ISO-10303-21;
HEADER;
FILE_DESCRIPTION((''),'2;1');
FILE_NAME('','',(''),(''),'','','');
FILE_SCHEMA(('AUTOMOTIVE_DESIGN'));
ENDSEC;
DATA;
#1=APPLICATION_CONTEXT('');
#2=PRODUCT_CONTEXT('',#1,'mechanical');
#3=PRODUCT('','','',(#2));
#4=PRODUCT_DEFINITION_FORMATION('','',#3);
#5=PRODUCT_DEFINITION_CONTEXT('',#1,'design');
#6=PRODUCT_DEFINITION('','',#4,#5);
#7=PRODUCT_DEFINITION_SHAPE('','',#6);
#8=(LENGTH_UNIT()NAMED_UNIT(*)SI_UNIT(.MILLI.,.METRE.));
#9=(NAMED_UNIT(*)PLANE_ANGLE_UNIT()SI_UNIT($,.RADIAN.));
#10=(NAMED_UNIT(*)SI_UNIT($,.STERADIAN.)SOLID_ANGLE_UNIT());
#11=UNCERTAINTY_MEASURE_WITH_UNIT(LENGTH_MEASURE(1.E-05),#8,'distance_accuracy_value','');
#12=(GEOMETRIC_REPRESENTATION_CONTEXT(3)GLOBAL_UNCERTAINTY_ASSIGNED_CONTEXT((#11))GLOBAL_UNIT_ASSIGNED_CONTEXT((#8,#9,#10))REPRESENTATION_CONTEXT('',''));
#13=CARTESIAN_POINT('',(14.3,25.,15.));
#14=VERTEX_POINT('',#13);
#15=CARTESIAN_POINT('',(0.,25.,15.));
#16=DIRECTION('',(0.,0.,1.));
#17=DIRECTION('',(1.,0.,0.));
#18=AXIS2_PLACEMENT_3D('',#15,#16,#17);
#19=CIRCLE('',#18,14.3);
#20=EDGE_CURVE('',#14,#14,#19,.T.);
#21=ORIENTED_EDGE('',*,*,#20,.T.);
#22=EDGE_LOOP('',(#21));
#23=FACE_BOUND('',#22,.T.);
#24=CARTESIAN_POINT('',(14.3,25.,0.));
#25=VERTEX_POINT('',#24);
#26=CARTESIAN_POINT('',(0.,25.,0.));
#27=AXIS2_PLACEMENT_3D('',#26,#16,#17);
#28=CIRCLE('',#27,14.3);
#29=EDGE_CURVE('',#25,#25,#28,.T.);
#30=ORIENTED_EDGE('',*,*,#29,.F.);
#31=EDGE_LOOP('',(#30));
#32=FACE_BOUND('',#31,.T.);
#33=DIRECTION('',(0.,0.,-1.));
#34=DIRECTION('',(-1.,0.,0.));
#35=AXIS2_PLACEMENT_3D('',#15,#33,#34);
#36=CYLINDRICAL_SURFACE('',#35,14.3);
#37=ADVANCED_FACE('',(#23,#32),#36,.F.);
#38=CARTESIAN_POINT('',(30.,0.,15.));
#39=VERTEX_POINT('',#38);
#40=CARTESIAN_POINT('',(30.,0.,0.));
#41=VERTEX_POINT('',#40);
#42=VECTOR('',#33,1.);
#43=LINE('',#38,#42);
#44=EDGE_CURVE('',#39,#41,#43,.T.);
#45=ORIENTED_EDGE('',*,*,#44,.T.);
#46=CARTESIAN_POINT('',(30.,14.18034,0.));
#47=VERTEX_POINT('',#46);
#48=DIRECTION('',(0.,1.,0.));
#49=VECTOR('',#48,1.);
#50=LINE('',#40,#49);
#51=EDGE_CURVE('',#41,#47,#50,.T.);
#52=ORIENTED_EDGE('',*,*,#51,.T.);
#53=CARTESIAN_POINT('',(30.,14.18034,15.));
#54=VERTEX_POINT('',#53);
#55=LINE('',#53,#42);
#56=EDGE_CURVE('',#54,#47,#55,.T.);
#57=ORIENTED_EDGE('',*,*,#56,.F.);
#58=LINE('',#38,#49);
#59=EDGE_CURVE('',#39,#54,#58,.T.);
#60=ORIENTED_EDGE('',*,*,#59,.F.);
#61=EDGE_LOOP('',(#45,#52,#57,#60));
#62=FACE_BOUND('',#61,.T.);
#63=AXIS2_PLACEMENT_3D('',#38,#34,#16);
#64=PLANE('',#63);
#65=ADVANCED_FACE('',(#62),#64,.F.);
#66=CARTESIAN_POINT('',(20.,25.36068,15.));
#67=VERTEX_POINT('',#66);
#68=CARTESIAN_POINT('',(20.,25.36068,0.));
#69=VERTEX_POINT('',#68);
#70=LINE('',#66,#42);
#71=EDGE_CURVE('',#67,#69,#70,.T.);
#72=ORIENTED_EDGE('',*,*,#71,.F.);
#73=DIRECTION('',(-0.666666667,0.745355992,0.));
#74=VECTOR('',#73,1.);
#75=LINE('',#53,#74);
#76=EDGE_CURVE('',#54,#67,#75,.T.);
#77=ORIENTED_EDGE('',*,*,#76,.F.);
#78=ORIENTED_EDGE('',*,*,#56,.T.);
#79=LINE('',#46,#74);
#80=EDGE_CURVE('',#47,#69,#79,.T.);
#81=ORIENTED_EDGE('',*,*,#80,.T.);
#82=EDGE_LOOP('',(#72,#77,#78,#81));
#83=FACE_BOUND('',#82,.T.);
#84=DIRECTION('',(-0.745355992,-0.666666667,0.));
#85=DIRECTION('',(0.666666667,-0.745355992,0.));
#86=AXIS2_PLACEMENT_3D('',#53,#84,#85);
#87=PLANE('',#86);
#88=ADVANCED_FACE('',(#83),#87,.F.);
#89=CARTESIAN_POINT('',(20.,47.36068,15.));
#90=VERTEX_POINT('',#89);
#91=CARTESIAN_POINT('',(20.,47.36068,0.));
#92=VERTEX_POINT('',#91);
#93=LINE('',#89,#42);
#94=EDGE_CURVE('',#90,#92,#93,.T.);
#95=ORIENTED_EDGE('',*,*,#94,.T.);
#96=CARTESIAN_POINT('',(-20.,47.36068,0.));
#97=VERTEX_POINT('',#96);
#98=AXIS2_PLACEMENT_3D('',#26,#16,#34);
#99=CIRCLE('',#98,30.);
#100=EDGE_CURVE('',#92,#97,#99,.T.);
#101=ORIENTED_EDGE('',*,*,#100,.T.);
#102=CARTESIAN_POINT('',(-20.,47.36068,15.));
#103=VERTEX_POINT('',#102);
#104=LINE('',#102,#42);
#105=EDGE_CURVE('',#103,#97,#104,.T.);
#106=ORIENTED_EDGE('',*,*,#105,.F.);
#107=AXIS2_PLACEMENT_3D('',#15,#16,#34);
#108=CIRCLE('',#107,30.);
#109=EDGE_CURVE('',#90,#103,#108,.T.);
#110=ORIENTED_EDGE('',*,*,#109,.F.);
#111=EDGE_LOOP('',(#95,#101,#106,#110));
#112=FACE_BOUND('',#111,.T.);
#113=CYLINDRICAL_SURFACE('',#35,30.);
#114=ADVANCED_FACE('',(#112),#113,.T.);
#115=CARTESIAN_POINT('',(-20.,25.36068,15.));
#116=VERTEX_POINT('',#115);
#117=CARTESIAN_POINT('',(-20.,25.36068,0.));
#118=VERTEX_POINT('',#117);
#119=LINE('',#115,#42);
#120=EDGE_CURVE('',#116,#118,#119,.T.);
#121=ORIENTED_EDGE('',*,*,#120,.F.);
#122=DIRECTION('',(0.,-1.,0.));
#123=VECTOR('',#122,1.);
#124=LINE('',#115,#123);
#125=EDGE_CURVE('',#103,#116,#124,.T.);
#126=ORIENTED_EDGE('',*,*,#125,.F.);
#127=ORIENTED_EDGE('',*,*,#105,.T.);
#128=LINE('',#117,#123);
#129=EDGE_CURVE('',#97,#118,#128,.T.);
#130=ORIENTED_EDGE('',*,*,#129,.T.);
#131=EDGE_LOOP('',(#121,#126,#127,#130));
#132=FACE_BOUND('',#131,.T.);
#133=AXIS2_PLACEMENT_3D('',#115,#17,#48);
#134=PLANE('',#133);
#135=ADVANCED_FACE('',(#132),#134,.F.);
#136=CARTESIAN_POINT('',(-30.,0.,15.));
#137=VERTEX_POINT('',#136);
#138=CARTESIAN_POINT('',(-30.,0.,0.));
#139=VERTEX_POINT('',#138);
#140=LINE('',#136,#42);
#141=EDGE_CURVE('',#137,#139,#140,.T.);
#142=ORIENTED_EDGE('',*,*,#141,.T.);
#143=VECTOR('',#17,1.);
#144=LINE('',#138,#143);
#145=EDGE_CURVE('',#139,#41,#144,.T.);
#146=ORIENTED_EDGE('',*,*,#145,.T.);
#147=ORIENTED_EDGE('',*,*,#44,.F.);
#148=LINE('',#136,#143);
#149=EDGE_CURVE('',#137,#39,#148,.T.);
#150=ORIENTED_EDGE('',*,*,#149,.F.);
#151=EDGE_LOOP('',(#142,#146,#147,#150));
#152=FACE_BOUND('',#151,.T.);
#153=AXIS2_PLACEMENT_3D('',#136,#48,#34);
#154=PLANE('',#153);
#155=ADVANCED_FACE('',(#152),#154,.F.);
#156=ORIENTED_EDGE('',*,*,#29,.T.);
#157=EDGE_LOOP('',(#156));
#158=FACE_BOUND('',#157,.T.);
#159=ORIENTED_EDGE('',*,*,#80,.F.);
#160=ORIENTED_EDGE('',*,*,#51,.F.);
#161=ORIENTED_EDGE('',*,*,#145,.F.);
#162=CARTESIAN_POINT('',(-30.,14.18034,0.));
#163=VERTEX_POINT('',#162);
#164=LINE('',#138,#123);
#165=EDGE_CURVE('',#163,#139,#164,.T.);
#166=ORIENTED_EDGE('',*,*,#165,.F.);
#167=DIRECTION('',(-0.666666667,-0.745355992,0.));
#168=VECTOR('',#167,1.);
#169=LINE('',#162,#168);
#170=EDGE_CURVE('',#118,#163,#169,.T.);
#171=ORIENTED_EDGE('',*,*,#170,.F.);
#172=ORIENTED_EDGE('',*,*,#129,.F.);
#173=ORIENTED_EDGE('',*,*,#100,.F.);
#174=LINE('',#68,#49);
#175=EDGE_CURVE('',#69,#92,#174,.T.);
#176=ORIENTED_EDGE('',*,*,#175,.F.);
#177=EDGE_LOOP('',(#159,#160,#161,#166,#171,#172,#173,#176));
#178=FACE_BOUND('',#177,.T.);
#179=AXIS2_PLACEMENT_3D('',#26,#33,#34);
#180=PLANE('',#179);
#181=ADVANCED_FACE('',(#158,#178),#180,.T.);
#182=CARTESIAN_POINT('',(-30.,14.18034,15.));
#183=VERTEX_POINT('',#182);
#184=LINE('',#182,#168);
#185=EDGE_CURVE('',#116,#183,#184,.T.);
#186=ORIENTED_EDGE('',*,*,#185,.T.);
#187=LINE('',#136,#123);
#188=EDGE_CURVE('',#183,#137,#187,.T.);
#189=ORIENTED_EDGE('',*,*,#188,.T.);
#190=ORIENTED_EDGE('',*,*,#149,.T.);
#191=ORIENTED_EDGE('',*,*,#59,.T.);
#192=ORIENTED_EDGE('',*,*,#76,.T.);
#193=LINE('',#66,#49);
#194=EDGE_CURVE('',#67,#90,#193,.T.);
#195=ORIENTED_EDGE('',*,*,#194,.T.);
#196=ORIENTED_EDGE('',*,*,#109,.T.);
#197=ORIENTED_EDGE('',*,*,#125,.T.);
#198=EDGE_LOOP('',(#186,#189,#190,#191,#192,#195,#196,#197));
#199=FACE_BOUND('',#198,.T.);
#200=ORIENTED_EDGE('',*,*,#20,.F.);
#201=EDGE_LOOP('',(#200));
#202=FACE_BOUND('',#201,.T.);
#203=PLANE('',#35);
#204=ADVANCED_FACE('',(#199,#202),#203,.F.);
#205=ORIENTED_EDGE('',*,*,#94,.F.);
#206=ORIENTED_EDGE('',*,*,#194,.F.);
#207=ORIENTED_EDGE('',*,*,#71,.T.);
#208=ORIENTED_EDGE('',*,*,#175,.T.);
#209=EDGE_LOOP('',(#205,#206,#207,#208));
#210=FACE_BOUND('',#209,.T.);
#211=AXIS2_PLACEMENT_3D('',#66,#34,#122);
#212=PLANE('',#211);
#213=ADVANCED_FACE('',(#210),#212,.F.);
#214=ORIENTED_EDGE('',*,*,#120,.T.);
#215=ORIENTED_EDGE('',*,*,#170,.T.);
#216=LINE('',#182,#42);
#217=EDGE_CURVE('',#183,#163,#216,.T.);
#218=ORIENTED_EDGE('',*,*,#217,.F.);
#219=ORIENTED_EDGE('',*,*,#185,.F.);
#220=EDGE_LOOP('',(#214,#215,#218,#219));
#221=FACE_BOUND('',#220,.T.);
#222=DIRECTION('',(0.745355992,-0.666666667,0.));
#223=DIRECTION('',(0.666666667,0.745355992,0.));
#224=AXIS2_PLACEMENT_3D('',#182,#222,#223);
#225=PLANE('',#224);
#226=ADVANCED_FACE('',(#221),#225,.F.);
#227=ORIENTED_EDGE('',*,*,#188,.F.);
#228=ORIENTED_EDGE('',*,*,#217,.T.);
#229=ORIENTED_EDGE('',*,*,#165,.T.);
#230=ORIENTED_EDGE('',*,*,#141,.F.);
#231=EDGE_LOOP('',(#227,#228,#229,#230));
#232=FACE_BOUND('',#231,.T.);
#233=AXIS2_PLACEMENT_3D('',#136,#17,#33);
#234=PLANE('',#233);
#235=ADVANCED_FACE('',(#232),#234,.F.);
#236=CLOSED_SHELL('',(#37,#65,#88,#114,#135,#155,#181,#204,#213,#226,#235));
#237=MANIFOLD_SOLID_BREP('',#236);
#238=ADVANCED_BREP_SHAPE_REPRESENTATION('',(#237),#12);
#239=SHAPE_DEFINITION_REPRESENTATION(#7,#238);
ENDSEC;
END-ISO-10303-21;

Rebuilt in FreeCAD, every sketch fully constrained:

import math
import FreeCAD as App
import Part
import Sketcher
from FreeCAD import Vector
Q = App.Units.Quantity

doc = App.newDocument("Part")
params = doc.addObject("Spreadsheet::Sheet", "Params")
for row, (alias, value) in enumerate([
    ("sketch1_radius", "30 mm"),
    ("sketch1_diameter", "28.6 mm"),
    ("sketch1_width", "60 mm"),
    ("sketch1_height", "22 mm"),
    ("sketch1_length", "15 mm"),
    ("pad1_length", "15 mm"),
], start=1):
    params.set(f"A{row}", alias)
    params.set(f"B{row}", "=" + value)
    params.setAlias(f"B{row}", alias)

body = doc.addObject("PartDesign::Body", "Body")

# Sketch on XY plane
sketch1 = doc.addObject("Sketcher::SketchObject", "Sketch")
body.addObject(sketch1)
sketch1.AttachmentSupport = (doc.XY_Plane, [""])
sketch1.MapMode = "FlatFace"
sketch1.addGeometry([
    Part.LineSegment(Vector(-30, 0, 0), Vector(30, 0, 0)),  # 0
    Part.LineSegment(Vector(30, 0, 0), Vector(30, 14.18034, 0)),  # 1
    Part.LineSegment(Vector(30, 14.18034, 0), Vector(20, 25.36068, 0)),  # 2
    Part.LineSegment(Vector(20, 25.36068, 0), Vector(20, 47.36068, 0)),  # 3
    Part.ArcOfCircle(Part.Circle(Vector(0, 25, 0), Vector(0, 0, 1), 30), math.radians(48.189685), math.radians(131.810315)),  # 4
    Part.LineSegment(Vector(-20, 47.36068, 0), Vector(-20, 25.36068, 0)),  # 5
    Part.LineSegment(Vector(-20, 25.36068, 0), Vector(-30, 14.18034, 0)),  # 6
    Part.LineSegment(Vector(-30, 14.18034, 0), Vector(-30, 0, 0)),  # 7
    Part.Circle(Vector(0, 25, 0), Vector(0, 0, 1), 14.3),  # 8
], False)
sketch1.addConstraint([
    Sketcher.Constraint("Coincident", 0, 2, 1, 1),
    Sketcher.Constraint("Coincident", 1, 2, 2, 1),
    Sketcher.Constraint("Coincident", 2, 2, 3, 1),
    Sketcher.Constraint("Coincident", 3, 2, 4, 1),
    Sketcher.Constraint("Coincident", 4, 2, 5, 1),
    Sketcher.Constraint("Coincident", 5, 2, 6, 1),
    Sketcher.Constraint("Coincident", 6, 2, 7, 1),
    Sketcher.Constraint("Coincident", 7, 2, 0, 1),
    Sketcher.Constraint("Horizontal", 0),
    Sketcher.Constraint("Vertical", 1),
    Sketcher.Constraint("Vertical", 3),
    Sketcher.Constraint("Vertical", 5),
    Sketcher.Constraint("Vertical", 7),
    Sketcher.Constraint("Coincident", 8, 3, 4, 3),
    Sketcher.Constraint("Symmetric", 0, 2, 7, 2, -1, 1),
    Sketcher.Constraint("Symmetric", 3, 2, 4, 2, -2),
    Sketcher.Constraint("Horizontal", 2, 2, 5, 2),
    Sketcher.Constraint("Horizontal", 1, 2, 6, 2),
    Sketcher.Constraint("Radius", 4, Q("30 mm")),
    Sketcher.Constraint("Diameter", 8, Q("28.6 mm")),
    Sketcher.Constraint("DistanceX", 0, 1, 0, 2, Q("60 mm")),
    Sketcher.Constraint("DistanceY", 3, 1, 3, 2, Q("22 mm")),
    Sketcher.Constraint("Distance", 2, Q("15 mm")),
    Sketcher.Constraint("DistanceY", -1, 1, 4, 3, Q("25 mm")),
    Sketcher.Constraint("DistanceX", -1, 1, 2, 2, Q("20 mm")),
])
sketch1.setExpression("Constraints[18]", "Params.sketch1_radius")
sketch1.setExpression("Constraints[19]", "Params.sketch1_diameter")
sketch1.setExpression("Constraints[20]", "Params.sketch1_width")
sketch1.setExpression("Constraints[21]", "Params.sketch1_height")
sketch1.setExpression("Constraints[22]", "Params.sketch1_length")
pad1 = doc.addObject("PartDesign::Pad", "Pad")
body.addObject(pad1)
pad1.Profile = sketch1
pad1.setExpression("Length", "Params.pad1_length")

doc.recompute()
